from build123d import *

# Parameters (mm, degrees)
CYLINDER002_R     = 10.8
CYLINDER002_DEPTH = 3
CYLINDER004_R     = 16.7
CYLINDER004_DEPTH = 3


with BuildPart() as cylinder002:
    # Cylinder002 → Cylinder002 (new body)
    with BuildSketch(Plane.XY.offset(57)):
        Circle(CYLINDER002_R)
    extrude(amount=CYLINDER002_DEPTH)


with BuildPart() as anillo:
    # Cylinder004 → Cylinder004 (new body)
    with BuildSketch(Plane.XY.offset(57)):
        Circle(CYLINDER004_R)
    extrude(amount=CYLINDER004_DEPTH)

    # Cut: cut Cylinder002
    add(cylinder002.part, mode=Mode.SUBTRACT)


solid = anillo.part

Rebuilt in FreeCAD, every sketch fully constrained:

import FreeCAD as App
import Part
import Sketcher

doc = App.newDocument("Part")
body = doc.addObject("PartDesign::Body", "Body")

sketch1 = doc.addObject("Sketcher::SketchObject", "Sketch")
body.addObject(sketch1)
sketch1.AttachmentSupport = (doc.XY_Plane, [""])
sketch1.MapMode = "FlatFace"
sketch1.AttachmentOffset = App.Placement(App.Vector(0, 0, 57), App.Rotation())
sketch1.addGeometry(Part.Circle(App.Vector(0, 0, 0), App.Vector(0, 0, 1), 11), False)
sketch1.addConstraint([
    Sketcher.Constraint("Coincident", 0, 3, -1, 1),
    Sketcher.Constraint("Diameter", 0, 21.6),
])
pad1 = doc.addObject("PartDesign::Pad", "Pad")
body.addObject(pad1)
pad1.Profile = sketch1
pad1.Length = 3
body2 = doc.addObject("PartDesign::Body", "Body001")

sketch2 = doc.addObject("Sketcher::SketchObject", "Sketch001")
body2.addObject(sketch2)
sketch2.AttachmentSupport = (doc.getObject("XY_Plane001"), [""])
sketch2.MapMode = "FlatFace"
sketch2.AttachmentOffset = App.Placement(App.Vector(0, 0, 57), App.Rotation())
sketch2.addGeometry(Part.Circle(App.Vector(0, 0, 0), App.Vector(0, 0, 1), 17), False)
sketch2.addConstraint([
    Sketcher.Constraint("Coincident", 0, 3, -1, 1),
    Sketcher.Constraint("Diameter", 0, 33.4),
])
pad2 = doc.addObject("PartDesign::Pad", "Pad001")
body2.addObject(pad2)
pad2.Profile = sketch2
pad2.Length = 3
doc.recompute()

boolean = doc.addObject("PartDesign::Boolean", "Boolean")
body2.addObject(boolean)
boolean.Type = "Cut"
boolean.addObjects([body])

doc.recompute()
